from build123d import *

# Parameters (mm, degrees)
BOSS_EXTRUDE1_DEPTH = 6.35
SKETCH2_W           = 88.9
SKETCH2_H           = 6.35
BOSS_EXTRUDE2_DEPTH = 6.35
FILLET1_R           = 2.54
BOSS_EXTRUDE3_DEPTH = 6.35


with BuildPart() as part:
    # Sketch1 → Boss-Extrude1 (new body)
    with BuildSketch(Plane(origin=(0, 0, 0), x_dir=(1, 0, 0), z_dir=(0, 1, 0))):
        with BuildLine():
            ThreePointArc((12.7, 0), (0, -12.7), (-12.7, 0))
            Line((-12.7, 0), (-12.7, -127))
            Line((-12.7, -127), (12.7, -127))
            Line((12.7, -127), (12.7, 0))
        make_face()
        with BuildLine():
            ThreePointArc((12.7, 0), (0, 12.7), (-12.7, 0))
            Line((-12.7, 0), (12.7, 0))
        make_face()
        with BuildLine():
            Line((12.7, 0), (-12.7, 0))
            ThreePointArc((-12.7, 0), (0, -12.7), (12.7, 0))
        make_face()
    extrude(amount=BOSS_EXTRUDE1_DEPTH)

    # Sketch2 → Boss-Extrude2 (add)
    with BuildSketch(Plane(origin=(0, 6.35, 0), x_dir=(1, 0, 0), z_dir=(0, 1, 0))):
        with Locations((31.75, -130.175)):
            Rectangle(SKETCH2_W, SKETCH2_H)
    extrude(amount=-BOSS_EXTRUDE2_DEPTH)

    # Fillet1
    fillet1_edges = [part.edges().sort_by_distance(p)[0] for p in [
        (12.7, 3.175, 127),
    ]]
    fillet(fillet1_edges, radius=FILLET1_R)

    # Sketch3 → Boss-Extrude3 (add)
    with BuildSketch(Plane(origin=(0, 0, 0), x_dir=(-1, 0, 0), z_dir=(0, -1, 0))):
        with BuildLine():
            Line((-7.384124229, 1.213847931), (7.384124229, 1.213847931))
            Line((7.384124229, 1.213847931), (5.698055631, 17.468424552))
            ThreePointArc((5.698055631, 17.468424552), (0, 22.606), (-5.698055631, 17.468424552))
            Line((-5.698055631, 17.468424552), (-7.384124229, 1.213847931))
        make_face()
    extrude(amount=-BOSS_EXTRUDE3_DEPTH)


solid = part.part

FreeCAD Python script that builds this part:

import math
import FreeCAD as App
import Part
import Sketcher
Q = App.Units.Quantity


def edges_at(feature, points):
    """Names of the edges that pass closest to the given points."""
    edges = feature.Shape.Edges
    near = lambda p: min(range(len(edges)), key=lambda i: edges[i].distToShape(Part.Vertex(*p))[0])
    return sorted({f"Edge{near(p) + 1}" for p in points})

doc = App.newDocument("Part")
body = doc.addObject("PartDesign::Body", "Body")

# Sketch on XZ plane
sketch1 = body.newObject("Sketcher::SketchObject", "Sketch")
sketch1.AttachmentSupport = (doc.getObject("XZ_Plane"), [""])
sketch1.MapMode = "FlatFace"
sketch1.addGeometry(Part.LineSegment(App.Vector(-13, 127, 0), App.Vector(13, 127, 0)), False)
sketch1.addGeometry(Part.LineSegment(App.Vector(13, 127, 0), App.Vector(13, 0, 0)), False)
sketch1.addGeometry(Part.ArcOfCircle(Part.Circle(App.Vector(0, 0, 0), App.Vector(0, 0, 1), 13), math.radians(180), math.radians(360)), False)
sketch1.addGeometry(Part.LineSegment(App.Vector(-13, 0, 0), App.Vector(-13, 127, 0)), False)
sketch1.addConstraint(Sketcher.Constraint("Coincident", 0, 2, 1, 1))
sketch1.addConstraint(Sketcher.Constraint("Tangent", 1, 2, 2, 2))
sketch1.addConstraint(Sketcher.Constraint("Tangent", 2, 1, 3, 1))
sketch1.addConstraint(Sketcher.Constraint("Coincident", 3, 2, 0, 1))
sketch1.addConstraint(Sketcher.Constraint("Horizontal", 0))
sketch1.addConstraint(Sketcher.Constraint("Vertical", 1))
sketch1.addConstraint(Sketcher.Constraint("Vertical", 3))
sketch1.addConstraint(Sketcher.Constraint("Coincident", 2, 3, -1, 1))
sketch1.addConstraint(Sketcher.Constraint("Radius", 2, Q("0.5 in")))
sketch1.addConstraint(Sketcher.Constraint("DistanceY", 1, 2, 1, 1, Q("5 in")))
pad1 = body.newObject("PartDesign::Pad", "Pad")
pad1.Profile = sketch1
pad1.Length = Q("0.25 in")
pad1.Reversed = True

# Sketch on XZ plane
sketch2 = body.newObject("Sketcher::SketchObject", "Sketch001")
sketch2.AttachmentSupport = (doc.getObject("XZ_Plane"), [""])
sketch2.MapMode = "FlatFace"
sketch2.AttachmentOffset = App.Placement(App.Vector(0, 0, -0.25 * 25.4), App.Rotation())
sketch2.addGeometry(Part.LineSegment(App.Vector(-13, 127, 0), App.Vector(-13, 133, 0)), False)
sketch2.addGeometry(Part.LineSegment(App.Vector(-13, 133, 0), App.Vector(76, 133, 0)), False)
sketch2.addGeometry(Part.LineSegment(App.Vector(76, 133, 0), App.Vector(76, 127, 0)), False)
sketch2.addGeometry(Part.LineSegment(App.Vector(76, 127, 0), App.Vector(-13, 127, 0)), False)
sketch2.addConstraint(Sketcher.Constraint("Coincident", 0, 2, 1, 1))
sketch2.addConstraint(Sketcher.Constraint("Coincident", 1, 2, 2, 1))
sketch2.addConstraint(Sketcher.Constraint("Coincident", 2, 2, 3, 1))
sketch2.addConstraint(Sketcher.Constraint("Coincident", 3, 2, 0, 1))
sketch2.addConstraint(Sketcher.Constraint("Vertical", 0))
sketch2.addConstraint(Sketcher.Constraint("Horizontal", 1))
sketch2.addConstraint(Sketcher.Constraint("Vertical", 2))
sketch2.addConstraint(Sketcher.Constraint("Horizontal", 3))
sketch2.addConstraint(Sketcher.Constraint("DistanceX", 1, 1, 1, 2, Q("3.5 in")))
sketch2.addConstraint(Sketcher.Constraint("DistanceX", -1, 1, 1, 2, Q("3 in")))
sketch2.addConstraint(Sketcher.Constraint("DistanceY", -1, 1, 2, 2, Q("5 in")))
sketch2.addConstraint(Sketcher.Constraint("DistanceY", 0, 1, 0, 2, Q("0.25 in")))
pad2 = body.newObject("PartDesign::Pad", "Pad001")
pad2.Profile = sketch2
pad2.Length = Q("0.25 in")
doc.recompute()

fillet = body.newObject("PartDesign::Fillet", "Fillet")
fillet.Base = (pad2, edges_at(pad2, [(12.7, 3.175, 127)]))
fillet.Radius = Q("0.1 in")

# Sketch on XZ plane
sketch3 = body.newObject("Sketcher::SketchObject", "Sketch002")
sketch3.AttachmentSupport = (doc.getObject("XZ_Plane"), [""])
sketch3.MapMode = "FlatFace"
sketch3.addGeometry(Part.LineSegment(App.Vector(7, -1, 0), App.Vector(-7, -1, 0)), False)
sketch3.addGeometry(Part.LineSegment(App.Vector(-7, -1, 0), App.Vector(-6, -17, 0)), False)
sketch3.addGeometry(Part.ArcOfCircle(Part.Circle(App.Vector(0, -17, 0), App.Vector(0, 0, 1), 6), math.radians(-174), math.radians(-6)), False)
sketch3.addGeometry(Part.LineSegment(App.Vector(6, -17, 0), App.Vector(7, -1, 0)), False)
sketch3.addConstraint(Sketcher.Constraint("Coincident", 0, 2, 1, 1))
sketch3.addConstraint(Sketcher.Constraint("Tangent", 1, 2, 2, 1))
sketch3.addConstraint(Sketcher.Constraint("Tangent", 2, 2, 3, 1))
sketch3.addConstraint(Sketcher.Constraint("Coincident", 3, 2, 0, 1))
sketch3.addConstraint(Sketcher.Constraint("Horizontal", 0))
sketch3.addConstraint(Sketcher.Constraint("Symmetric", 1, 2, 2, 2, -2))
sketch3.addConstraint(Sketcher.Constraint("Radius", 2, 5.728628))
sketch3.addConstraint(Sketcher.Constraint("DistanceX", 0, 2, 0, 1, 14.768248))
sketch3.addConstraint(Sketcher.Constraint("Distance", 1, 16.34179))
sketch3.addConstraint(Sketcher.Constraint("DistanceY", 2, 3, -1, 1, 16.877372))
pad3 = body.newObject("PartDesign::Pad", "Pad002")
pad3.Profile = sketch3
pad3.Length = Q("0.25 in")
pad3.Reversed = True

doc.recompute()
